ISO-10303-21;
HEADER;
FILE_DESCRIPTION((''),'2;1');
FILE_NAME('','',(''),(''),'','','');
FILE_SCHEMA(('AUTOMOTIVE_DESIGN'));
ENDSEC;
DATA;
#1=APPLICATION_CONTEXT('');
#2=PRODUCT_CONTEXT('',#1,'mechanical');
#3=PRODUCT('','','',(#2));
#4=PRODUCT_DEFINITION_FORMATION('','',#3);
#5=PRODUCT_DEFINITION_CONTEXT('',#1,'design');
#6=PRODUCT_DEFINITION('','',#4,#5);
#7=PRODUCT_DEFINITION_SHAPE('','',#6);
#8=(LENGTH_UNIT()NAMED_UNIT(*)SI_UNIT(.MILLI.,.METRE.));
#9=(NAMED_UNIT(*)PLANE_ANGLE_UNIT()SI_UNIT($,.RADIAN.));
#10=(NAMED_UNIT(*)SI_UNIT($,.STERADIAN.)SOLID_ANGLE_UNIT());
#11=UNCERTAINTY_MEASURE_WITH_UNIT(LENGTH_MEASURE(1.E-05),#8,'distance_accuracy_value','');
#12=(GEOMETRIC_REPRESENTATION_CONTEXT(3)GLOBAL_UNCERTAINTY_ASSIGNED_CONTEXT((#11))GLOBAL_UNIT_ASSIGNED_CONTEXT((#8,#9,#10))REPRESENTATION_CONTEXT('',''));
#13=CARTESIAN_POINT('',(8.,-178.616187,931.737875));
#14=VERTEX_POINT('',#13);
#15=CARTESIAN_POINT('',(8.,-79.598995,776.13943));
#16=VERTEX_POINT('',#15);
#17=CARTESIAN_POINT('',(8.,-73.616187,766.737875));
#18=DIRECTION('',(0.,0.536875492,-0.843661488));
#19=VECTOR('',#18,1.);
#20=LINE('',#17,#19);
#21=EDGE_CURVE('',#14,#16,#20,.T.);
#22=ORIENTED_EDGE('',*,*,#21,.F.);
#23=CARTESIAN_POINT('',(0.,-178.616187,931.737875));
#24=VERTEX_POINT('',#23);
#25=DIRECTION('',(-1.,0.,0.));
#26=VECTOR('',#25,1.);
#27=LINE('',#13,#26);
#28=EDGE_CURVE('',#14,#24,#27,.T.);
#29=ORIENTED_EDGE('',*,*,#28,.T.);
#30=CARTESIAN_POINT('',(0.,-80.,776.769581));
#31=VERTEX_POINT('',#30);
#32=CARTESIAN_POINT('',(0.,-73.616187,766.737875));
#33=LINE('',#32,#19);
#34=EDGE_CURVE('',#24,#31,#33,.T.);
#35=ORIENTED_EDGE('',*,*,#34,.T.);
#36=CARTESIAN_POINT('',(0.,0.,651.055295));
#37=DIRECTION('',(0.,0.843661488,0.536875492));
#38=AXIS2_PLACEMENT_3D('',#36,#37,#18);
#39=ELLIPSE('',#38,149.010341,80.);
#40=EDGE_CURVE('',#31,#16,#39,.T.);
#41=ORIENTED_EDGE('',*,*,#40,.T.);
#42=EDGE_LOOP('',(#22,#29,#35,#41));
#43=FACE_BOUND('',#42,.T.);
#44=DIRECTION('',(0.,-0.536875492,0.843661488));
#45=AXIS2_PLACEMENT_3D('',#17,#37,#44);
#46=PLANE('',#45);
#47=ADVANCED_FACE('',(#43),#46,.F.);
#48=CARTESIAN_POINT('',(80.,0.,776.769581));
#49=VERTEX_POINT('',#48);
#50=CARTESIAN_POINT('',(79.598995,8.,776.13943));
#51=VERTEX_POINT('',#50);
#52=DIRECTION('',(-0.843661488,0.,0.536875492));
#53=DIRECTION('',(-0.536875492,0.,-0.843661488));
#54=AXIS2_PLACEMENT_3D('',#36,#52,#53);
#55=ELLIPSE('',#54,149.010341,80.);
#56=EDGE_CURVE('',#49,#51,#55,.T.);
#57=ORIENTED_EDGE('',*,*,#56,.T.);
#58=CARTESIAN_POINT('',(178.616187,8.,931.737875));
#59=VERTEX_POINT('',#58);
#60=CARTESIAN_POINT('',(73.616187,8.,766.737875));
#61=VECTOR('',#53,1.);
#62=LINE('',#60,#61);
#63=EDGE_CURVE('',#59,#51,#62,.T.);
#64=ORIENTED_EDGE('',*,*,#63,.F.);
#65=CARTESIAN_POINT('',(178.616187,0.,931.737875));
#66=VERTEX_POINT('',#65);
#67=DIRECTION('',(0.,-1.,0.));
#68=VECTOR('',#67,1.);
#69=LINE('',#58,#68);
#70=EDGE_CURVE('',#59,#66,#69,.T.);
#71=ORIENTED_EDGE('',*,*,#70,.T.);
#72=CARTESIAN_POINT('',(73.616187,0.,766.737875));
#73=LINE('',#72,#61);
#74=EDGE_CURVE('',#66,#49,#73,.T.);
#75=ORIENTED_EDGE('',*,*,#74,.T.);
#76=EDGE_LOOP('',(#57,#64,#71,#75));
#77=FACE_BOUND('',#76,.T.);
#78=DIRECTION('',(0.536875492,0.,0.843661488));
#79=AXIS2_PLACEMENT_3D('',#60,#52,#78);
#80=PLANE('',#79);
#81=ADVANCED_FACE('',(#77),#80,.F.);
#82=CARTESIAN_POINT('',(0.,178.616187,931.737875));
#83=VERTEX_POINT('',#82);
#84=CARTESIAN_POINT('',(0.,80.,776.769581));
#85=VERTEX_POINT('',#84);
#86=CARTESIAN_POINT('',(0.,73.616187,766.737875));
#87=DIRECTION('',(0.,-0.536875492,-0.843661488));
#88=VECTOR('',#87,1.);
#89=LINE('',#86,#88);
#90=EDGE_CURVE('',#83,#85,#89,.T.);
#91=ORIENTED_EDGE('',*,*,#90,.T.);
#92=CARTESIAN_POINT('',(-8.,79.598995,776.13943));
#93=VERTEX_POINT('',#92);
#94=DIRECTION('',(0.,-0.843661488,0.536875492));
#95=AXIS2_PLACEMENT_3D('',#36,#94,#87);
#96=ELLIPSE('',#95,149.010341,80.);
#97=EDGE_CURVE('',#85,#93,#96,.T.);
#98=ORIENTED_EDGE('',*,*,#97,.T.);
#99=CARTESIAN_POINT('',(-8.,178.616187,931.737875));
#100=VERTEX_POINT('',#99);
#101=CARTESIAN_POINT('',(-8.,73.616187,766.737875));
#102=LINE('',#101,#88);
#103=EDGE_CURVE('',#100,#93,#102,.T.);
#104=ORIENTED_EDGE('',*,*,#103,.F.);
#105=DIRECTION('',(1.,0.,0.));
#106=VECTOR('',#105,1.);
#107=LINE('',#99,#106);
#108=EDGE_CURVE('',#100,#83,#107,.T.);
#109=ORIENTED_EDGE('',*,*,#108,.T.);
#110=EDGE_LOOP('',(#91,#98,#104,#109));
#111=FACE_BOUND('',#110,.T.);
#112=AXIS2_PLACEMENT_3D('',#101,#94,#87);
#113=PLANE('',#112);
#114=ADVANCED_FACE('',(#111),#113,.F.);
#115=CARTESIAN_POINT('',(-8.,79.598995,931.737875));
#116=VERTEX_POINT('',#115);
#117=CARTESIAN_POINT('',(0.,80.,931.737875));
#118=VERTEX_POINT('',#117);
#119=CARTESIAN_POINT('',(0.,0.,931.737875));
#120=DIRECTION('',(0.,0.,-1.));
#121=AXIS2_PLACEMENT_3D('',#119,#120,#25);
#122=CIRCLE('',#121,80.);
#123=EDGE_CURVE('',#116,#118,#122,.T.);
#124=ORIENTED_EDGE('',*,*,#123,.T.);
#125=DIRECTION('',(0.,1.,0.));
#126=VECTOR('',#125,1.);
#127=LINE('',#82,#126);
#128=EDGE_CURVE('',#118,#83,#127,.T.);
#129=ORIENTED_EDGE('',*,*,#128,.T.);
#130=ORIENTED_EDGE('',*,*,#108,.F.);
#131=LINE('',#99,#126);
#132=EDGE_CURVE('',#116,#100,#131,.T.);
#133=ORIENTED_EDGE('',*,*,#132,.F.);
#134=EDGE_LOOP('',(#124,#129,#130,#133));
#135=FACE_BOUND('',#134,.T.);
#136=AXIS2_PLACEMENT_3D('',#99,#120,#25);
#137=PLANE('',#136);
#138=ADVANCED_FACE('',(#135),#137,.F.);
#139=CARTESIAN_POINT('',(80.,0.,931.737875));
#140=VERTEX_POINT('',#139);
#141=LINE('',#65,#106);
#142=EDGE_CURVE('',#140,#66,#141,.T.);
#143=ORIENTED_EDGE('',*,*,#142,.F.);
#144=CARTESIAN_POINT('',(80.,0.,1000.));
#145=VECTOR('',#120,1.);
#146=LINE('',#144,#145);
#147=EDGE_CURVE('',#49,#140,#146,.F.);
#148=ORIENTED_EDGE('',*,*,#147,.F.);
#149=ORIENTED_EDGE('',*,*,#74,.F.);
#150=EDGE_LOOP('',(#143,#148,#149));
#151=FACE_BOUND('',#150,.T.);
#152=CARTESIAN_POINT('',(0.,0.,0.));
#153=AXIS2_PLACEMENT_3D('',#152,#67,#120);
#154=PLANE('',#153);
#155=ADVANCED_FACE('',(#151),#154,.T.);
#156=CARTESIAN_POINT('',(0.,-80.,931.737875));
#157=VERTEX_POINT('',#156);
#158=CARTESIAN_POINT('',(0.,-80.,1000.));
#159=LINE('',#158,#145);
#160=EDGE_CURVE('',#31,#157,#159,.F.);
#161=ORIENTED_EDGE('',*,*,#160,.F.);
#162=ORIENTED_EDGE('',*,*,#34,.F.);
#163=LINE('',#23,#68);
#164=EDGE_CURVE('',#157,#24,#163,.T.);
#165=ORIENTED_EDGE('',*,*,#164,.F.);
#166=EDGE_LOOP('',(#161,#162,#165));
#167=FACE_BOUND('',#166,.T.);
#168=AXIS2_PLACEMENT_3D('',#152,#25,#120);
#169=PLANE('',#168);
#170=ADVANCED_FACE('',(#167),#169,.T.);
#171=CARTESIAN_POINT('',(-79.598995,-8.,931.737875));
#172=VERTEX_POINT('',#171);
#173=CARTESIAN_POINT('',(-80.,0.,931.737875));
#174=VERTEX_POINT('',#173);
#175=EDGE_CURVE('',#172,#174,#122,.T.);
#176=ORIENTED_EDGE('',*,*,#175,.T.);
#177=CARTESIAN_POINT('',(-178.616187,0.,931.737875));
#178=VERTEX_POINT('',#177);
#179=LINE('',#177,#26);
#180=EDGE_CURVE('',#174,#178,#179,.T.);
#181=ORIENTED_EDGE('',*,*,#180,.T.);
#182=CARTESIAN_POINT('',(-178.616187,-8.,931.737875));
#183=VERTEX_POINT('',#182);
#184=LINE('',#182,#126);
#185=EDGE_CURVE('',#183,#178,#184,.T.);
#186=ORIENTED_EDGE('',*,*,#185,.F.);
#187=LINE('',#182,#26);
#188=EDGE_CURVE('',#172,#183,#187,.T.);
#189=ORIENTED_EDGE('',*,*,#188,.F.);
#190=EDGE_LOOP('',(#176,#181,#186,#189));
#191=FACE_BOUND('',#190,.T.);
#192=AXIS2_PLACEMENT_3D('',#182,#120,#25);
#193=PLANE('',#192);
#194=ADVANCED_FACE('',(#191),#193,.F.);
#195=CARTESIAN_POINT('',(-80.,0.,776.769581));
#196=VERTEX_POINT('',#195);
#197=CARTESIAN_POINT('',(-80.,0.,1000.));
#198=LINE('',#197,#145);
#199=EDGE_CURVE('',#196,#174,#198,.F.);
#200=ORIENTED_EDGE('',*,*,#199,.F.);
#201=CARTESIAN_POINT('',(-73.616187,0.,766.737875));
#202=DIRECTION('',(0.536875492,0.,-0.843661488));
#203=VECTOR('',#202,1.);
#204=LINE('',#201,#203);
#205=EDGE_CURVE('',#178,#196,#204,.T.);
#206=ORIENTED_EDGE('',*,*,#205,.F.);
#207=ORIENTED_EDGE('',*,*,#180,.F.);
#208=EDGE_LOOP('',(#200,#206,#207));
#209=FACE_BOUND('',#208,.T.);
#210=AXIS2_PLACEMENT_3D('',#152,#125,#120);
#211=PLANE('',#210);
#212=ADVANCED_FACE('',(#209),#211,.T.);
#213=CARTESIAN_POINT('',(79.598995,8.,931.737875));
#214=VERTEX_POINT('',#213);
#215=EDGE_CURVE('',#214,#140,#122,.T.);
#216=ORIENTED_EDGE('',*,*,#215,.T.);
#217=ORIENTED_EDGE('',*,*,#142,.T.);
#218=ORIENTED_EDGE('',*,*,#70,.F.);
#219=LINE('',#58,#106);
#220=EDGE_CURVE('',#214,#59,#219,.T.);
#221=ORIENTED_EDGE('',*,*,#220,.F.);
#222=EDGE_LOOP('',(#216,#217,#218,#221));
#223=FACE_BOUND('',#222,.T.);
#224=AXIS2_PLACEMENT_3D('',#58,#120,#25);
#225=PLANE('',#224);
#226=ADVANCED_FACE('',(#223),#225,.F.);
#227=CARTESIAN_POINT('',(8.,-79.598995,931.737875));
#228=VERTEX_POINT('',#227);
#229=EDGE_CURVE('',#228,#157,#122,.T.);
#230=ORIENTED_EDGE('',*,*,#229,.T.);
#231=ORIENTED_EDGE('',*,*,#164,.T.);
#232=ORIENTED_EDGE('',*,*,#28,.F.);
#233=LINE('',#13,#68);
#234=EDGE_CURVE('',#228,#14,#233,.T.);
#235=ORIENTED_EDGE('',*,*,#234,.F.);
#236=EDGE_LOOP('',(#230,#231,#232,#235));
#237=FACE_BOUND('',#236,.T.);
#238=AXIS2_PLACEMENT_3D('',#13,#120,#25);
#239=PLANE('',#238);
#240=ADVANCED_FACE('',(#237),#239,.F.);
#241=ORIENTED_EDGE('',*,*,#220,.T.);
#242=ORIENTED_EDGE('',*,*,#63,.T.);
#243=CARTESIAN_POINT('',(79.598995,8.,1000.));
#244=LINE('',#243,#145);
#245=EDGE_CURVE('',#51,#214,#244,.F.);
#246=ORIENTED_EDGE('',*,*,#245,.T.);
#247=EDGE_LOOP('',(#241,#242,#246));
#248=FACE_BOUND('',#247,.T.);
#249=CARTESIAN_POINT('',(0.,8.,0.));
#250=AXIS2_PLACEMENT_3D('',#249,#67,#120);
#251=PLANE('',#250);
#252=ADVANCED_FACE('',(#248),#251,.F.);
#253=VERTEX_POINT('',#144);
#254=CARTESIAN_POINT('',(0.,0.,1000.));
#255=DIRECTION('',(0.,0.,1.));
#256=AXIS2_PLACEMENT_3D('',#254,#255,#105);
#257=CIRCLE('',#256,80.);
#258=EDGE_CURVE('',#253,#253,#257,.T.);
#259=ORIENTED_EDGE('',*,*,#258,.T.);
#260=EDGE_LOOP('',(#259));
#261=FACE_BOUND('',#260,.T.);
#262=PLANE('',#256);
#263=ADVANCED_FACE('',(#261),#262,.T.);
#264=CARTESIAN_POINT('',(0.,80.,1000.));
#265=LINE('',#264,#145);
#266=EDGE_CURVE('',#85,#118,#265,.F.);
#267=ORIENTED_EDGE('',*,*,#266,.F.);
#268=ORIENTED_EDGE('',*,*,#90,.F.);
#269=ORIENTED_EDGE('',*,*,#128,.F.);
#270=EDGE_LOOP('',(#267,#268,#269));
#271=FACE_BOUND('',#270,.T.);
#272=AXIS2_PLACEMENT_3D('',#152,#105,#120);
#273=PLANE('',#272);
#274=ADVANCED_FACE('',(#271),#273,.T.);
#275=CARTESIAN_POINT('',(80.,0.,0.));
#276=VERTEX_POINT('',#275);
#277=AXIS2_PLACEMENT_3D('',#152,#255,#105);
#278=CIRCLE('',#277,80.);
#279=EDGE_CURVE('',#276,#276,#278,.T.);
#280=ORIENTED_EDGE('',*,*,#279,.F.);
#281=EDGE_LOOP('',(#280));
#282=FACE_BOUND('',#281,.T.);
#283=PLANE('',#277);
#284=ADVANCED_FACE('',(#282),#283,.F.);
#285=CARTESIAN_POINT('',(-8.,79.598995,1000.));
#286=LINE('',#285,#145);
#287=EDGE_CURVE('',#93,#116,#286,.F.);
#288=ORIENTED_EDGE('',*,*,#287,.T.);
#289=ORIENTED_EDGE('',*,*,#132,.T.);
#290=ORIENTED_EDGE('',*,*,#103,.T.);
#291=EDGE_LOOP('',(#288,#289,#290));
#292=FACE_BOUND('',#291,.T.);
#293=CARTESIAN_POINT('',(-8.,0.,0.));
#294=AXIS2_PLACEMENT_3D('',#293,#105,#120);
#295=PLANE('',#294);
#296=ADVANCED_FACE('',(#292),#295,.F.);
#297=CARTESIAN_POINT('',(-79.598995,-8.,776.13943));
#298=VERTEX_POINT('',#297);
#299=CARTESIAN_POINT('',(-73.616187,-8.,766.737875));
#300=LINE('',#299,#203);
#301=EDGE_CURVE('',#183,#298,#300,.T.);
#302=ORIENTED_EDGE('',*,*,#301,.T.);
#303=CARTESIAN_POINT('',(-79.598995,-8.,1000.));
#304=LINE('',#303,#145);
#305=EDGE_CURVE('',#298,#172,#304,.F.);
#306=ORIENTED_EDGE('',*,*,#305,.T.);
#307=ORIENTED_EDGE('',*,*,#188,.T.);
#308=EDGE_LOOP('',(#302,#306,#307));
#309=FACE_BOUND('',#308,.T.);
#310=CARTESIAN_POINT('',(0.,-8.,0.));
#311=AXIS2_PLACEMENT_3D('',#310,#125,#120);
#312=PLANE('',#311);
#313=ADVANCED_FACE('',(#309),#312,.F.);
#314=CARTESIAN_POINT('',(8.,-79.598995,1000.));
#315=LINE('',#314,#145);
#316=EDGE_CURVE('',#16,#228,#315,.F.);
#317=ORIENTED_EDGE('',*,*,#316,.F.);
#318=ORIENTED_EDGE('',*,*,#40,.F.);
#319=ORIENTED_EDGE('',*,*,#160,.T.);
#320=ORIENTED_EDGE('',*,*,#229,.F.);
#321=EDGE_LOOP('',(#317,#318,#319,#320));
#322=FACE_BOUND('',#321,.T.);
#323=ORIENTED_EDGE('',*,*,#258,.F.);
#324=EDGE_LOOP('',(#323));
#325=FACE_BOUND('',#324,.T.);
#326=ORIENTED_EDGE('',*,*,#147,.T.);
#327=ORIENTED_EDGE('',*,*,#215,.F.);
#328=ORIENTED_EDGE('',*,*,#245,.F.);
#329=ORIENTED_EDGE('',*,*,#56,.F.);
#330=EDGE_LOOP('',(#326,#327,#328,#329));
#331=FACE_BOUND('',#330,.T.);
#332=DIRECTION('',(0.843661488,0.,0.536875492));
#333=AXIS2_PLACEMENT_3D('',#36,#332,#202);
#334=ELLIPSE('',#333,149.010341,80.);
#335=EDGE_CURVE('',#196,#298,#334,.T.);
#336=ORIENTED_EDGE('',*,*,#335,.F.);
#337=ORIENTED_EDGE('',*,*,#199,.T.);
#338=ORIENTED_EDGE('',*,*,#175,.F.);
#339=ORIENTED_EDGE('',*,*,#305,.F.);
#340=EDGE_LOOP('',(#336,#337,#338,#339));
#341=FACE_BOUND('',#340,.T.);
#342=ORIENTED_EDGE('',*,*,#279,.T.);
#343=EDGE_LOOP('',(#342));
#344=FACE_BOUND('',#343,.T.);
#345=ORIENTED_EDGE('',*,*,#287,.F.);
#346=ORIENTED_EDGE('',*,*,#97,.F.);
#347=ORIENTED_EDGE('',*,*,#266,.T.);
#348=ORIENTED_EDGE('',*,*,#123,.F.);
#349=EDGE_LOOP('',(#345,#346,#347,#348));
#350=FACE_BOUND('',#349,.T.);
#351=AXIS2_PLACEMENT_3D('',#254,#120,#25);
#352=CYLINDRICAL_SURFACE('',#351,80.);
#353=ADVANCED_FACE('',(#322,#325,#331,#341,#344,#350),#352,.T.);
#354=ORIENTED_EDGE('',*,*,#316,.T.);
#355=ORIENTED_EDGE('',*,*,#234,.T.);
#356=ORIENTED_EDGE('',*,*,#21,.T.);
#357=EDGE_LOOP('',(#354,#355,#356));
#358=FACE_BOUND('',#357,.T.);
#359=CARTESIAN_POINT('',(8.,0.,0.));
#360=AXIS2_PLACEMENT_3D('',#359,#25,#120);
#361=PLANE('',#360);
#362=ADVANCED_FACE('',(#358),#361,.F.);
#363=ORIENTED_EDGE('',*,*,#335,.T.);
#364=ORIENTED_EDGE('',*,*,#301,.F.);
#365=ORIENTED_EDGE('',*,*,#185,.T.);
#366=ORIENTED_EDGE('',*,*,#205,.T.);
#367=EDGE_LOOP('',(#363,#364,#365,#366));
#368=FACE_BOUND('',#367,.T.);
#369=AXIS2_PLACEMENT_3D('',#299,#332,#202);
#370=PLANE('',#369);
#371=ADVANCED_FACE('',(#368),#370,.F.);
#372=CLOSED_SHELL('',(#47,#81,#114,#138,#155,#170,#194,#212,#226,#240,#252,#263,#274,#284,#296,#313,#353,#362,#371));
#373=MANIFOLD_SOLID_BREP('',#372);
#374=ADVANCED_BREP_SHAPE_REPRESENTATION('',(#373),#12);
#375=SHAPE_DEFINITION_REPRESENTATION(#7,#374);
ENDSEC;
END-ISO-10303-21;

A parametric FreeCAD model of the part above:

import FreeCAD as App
import Part
import Sketcher
from FreeCAD import Vector


def add_polygon(sketch, points):
    """Adds a closed chain of lines whose ends are joined by coincident constraints."""
    first, n = sketch.GeometryCount, len(points)
    for a, b in zip(points, points[1:] + points[:1]):
        sketch.addGeometry(Part.LineSegment(App.Vector(*a, 0), App.Vector(*b, 0)), False)
    for i in range(n):
        sketch.addConstraint(Sketcher.Constraint("Coincident", first + i, 2, first + (i + 1) % n, 1))

doc = App.newDocument("Part")
params = doc.addObject("Spreadsheet::Sheet", "Params")
for row, (alias, value) in enumerate([
    ("sketch1_diameter", "160 mm"),
    ("pad1_length", "1000 mm"),
    ("sketch2_width", "105 mm"),
    ("sketch2_height", "165 mm"),
    ("pad2_length", "8 mm"),
], start=1):
    params.set(f"A{row}", alias)
    params.set(f"B{row}", "=" + value)
    params.setAlias(f"B{row}", alias)

body = doc.addObject("PartDesign::Body", "Body")

# Sketch on XY plane
sketch1 = body.newObject("Sketcher::SketchObject", "Sketch")
sketch1.AttachmentSupport = (doc.getObject("XY_Plane"), [""])
sketch1.MapMode = "FlatFace"
sketch1.addGeometry(Part.Circle(Vector(0, 0, 0), Vector(0, 0, 1), 80), False)
sketch1.addConstraint([
    Sketcher.Constraint("Coincident", 0, 3, -1, 1),
    Sketcher.Constraint("Diameter", 0, 160.0),
])
sketch1.setExpression("Constraints[1]", "Params.sketch1_diameter")
pad1 = body.newObject("PartDesign::Pad", "Pad")
pad1.Profile = sketch1
pad1.setExpression("Length", "Params.pad1_length")

# Sketch on XZ plane
sketch2 = body.newObject("Sketcher::SketchObject", "Sketch001")
sketch2.AttachmentSupport = (doc.getObject("XZ_Plane"), [""])
sketch2.MapMode = "FlatFace"
add_polygon(sketch2, [(179, 932), (74, 767), (74, 932)])  # lines 0-2
sketch2.addConstraint([
    Sketcher.Constraint("Vertical", 1),
    Sketcher.Constraint("Horizontal", 2),
    Sketcher.Constraint("DistanceX", 2, 1, 2, 2, 105.0),
    Sketcher.Constraint("DistanceY", 1, 1, 1, 2, 165.0),
    Sketcher.Constraint("DistanceX", -1, 1, 0, 2, 73.616187),
    Sketcher.Constraint("DistanceY", -1, 1, 0, 2, 766.737875),
])
sketch2.setExpression("Constraints[5]", "Params.sketch2_width")
sketch2.setExpression("Constraints[6]", "Params.sketch2_height")
pad2 = body.newObject("PartDesign::Pad", "Pad001")
pad2.Profile = sketch2
pad2.setExpression("Length", "Params.pad2_length")
pad2.Reversed = True
doc.recompute()

polarpattern = body.newObject("PartDesign::PolarPattern", "PolarPattern")
polarpattern.Originals = [pad2]
polarpattern.Axis = (doc.getObject("Z_Axis"), [""])
polarpattern.Angle = 360
polarpattern.Occurrences = 4
body.Tip = polarpattern

doc.recompute()
